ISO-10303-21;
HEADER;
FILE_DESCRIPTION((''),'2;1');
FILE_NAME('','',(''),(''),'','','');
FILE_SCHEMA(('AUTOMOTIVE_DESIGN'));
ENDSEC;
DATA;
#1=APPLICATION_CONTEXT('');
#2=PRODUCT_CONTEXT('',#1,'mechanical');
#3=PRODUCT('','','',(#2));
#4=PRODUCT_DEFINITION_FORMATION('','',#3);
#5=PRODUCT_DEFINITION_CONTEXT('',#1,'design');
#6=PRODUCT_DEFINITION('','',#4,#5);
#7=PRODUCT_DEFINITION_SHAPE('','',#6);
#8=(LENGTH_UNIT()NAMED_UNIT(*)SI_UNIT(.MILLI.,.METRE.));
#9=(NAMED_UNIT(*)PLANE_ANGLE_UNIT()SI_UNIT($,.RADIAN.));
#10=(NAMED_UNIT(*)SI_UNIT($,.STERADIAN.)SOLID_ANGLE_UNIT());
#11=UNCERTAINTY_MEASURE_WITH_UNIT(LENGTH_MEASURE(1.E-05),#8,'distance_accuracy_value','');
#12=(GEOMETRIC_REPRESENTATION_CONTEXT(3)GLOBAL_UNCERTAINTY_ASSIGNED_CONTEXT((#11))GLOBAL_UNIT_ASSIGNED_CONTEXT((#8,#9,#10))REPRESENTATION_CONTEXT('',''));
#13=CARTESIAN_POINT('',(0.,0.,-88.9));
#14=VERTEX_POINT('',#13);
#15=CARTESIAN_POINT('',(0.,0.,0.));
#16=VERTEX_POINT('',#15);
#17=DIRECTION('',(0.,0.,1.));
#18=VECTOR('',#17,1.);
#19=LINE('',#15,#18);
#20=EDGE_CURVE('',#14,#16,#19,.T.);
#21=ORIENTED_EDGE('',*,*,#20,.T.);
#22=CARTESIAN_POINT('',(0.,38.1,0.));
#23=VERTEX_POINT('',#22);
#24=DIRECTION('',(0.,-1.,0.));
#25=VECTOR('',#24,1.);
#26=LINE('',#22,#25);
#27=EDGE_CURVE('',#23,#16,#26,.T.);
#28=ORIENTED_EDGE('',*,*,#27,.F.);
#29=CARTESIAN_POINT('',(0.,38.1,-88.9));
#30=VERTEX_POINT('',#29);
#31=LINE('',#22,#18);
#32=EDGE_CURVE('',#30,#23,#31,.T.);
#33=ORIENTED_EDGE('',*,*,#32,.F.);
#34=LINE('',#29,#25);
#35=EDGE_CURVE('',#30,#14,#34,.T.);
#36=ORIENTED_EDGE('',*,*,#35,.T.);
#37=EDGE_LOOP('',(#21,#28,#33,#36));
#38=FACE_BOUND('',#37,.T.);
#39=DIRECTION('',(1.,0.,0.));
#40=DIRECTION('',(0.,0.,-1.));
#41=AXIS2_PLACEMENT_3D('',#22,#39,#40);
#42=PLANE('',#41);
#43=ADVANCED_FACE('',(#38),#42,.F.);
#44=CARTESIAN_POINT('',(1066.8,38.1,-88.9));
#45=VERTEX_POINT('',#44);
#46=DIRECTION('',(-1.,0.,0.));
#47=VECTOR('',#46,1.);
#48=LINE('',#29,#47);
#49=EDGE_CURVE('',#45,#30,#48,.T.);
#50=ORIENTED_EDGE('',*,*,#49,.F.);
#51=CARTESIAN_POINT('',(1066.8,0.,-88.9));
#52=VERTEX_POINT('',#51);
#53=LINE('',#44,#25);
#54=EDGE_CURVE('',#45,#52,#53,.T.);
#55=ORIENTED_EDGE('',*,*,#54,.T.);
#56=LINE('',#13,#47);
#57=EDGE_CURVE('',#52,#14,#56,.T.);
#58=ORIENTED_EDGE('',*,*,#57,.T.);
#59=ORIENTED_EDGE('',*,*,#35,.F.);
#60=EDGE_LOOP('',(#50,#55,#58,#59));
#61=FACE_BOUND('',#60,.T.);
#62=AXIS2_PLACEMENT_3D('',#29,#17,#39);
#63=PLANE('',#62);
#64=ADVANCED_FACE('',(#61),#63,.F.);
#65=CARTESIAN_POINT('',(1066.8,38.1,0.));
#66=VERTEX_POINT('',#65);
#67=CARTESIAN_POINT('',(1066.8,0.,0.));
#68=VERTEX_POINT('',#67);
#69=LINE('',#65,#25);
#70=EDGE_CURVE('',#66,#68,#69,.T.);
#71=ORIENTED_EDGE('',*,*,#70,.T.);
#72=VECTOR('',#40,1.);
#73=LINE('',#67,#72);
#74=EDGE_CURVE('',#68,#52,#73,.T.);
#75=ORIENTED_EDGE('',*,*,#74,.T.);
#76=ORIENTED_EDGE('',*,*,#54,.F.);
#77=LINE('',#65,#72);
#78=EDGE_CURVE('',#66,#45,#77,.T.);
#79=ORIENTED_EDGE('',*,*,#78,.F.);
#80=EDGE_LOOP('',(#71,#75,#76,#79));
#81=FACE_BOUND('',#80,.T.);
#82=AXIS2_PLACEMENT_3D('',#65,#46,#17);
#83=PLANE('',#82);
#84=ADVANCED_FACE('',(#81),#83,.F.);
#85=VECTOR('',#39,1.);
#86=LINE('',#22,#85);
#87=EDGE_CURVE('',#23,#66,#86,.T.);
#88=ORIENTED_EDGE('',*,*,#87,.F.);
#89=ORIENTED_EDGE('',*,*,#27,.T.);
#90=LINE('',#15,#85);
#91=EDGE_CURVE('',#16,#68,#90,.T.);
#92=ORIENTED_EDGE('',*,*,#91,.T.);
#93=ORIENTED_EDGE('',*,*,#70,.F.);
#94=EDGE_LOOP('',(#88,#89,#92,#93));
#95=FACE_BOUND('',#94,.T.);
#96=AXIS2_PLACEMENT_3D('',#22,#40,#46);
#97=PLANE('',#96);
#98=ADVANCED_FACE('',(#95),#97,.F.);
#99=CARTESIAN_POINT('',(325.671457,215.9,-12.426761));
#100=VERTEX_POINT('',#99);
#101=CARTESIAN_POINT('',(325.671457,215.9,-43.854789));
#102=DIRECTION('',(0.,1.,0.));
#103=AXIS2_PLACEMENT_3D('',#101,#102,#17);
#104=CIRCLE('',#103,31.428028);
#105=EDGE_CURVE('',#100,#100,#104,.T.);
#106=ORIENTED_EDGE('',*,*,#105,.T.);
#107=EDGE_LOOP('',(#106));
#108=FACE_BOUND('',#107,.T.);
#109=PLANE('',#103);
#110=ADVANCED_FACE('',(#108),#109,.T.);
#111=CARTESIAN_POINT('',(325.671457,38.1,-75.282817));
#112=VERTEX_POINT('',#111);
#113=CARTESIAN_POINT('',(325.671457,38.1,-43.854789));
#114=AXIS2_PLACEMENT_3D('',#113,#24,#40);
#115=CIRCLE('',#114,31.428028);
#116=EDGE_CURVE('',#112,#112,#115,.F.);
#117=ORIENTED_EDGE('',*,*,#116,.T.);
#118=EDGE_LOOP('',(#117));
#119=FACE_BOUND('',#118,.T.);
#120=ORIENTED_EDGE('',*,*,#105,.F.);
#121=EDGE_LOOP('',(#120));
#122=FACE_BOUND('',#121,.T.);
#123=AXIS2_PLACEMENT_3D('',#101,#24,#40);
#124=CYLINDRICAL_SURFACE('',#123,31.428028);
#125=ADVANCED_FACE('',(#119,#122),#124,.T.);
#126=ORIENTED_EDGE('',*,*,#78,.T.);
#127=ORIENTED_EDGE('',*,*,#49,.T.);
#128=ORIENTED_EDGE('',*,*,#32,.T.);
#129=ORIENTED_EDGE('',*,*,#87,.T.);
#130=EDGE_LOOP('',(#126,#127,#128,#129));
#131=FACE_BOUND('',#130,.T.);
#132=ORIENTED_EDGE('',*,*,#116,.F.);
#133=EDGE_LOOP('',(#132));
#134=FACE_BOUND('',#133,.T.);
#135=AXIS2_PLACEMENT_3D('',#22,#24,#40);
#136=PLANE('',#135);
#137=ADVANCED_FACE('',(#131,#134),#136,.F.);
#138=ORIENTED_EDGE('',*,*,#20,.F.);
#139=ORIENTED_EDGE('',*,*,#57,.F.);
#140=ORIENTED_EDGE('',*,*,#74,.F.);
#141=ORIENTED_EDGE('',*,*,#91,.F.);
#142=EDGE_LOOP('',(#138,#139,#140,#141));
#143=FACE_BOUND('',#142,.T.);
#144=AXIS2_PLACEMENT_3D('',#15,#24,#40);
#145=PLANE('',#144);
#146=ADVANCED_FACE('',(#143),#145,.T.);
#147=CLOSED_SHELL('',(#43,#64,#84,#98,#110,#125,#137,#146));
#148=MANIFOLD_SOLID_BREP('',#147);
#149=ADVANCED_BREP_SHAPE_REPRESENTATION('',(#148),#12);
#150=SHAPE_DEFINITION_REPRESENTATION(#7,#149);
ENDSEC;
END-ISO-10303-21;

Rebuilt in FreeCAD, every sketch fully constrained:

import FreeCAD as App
import Part
import Sketcher
Q = App.Units.Quantity


def add_polygon(sketch, points):
    """Adds a closed chain of lines whose ends are joined by coincident constraints."""
    first, n = sketch.GeometryCount, len(points)
    for a, b in zip(points, points[1:] + points[:1]):
        sketch.addGeometry(Part.LineSegment(App.Vector(*a, 0), App.Vector(*b, 0)), False)
    for i in range(n):
        sketch.addConstraint(Sketcher.Constraint("Coincident", first + i, 2, first + (i + 1) % n, 1))

doc = App.newDocument("Part")
body = doc.addObject("PartDesign::Body", "Body")

# Sketch on XZ plane
sketch1 = doc.addObject("Sketcher::SketchObject", "Sketch")
body.addObject(sketch1)
sketch1.AttachmentSupport = (doc.XZ_Plane, [""])
sketch1.MapMode = "FlatFace"
add_polygon(sketch1, [(0, -89), (0, 0), (1067, 0), (1067, -89)])  # lines 0-3
sketch1.addConstraint(Sketcher.Constraint("Vertical", 0))
sketch1.addConstraint(Sketcher.Constraint("Horizontal", 1))
sketch1.addConstraint(Sketcher.Constraint("Vertical", 2))
sketch1.addConstraint(Sketcher.Constraint("Horizontal", 3))
sketch1.addConstraint(Sketcher.Constraint("Coincident", 0, 2, -1, 1))
sketch1.addConstraint(Sketcher.Constraint("DistanceX", 1, 1, 1, 2, Q("42 in")))
sketch1.addConstraint(Sketcher.Constraint("DistanceY", 0, 1, 0, 2, Q("3.5 in")))
pad1 = doc.addObject("PartDesign::Pad", "Pad")
body.addObject(pad1)
pad1.Profile = sketch1
pad1.Length = Q("1.5 in")
pad1.Reversed = True

# Sketch on XZ plane
sketch2 = doc.addObject("Sketcher::SketchObject", "Sketch001")
body.addObject(sketch2)
sketch2.AttachmentSupport = (doc.XZ_Plane, [""])
sketch2.MapMode = "FlatFace"
sketch2.AttachmentOffset = App.Placement(App.Vector(0, 0, -1.5 * 25.4), App.Rotation())
sketch2.addGeometry(Part.Circle(App.Vector(326, -44, 0), App.Vector(0, 0, 1), 31), False)
sketch2.addConstraint(Sketcher.Constraint("Diameter", 0, Q("62.856056 mm")))
sketch2.addConstraint(Sketcher.Constraint("DistanceY", 0, 3, -1, 1, Q("43.854789 mm")))
sketch2.addConstraint(Sketcher.Constraint("DistanceX", -1, 1, 0, 3, Q("325.671457 mm")))
pad2 = doc.addObject("PartDesign::Pad", "Pad001")
body.addObject(pad2)
pad2.Profile = sketch2
pad2.Length = Q("7 in")
pad2.Reversed = True

doc.recompute()
